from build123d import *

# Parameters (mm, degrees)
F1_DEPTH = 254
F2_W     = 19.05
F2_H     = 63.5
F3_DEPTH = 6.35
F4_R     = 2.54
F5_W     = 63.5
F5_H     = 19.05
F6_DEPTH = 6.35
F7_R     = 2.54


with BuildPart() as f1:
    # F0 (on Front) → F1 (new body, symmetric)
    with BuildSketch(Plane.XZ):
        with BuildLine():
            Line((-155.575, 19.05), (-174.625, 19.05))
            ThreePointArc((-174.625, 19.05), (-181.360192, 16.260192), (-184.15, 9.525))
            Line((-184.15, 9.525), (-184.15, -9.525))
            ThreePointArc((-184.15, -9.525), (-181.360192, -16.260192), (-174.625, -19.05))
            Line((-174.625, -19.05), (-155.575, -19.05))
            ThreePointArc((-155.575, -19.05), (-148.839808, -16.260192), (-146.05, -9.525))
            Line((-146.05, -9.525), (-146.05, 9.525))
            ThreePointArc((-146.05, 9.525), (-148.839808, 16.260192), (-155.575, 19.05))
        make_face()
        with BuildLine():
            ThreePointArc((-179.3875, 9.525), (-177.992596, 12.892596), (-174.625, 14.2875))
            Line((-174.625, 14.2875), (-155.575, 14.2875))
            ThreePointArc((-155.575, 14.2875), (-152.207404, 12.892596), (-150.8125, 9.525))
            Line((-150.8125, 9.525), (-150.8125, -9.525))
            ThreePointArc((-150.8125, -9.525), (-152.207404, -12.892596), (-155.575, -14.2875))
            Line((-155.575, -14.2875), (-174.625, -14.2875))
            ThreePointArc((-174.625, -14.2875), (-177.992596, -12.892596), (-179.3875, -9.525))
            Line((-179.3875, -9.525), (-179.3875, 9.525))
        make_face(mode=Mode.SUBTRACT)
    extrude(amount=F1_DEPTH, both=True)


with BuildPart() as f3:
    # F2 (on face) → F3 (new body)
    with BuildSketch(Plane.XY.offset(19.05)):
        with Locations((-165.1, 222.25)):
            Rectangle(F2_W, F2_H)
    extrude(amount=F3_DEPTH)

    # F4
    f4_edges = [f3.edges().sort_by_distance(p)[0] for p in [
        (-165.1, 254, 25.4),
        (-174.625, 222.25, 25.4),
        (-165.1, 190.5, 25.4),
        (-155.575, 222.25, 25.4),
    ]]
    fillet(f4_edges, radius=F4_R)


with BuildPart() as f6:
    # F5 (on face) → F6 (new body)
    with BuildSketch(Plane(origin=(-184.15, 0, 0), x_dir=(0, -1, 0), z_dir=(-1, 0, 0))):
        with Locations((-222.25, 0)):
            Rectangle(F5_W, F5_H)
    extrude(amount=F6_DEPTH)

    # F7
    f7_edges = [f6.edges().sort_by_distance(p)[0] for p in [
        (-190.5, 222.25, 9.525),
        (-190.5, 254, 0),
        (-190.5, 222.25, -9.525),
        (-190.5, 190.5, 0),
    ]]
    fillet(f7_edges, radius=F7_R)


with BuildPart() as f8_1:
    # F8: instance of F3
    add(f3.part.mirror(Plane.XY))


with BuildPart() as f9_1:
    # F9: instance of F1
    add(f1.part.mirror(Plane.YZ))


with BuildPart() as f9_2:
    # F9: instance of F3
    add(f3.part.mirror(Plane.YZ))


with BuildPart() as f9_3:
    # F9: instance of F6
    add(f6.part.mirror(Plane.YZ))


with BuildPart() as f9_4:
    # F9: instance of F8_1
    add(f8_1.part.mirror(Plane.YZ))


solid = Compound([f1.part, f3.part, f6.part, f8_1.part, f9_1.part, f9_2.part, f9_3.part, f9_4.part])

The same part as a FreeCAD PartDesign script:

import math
import FreeCAD as App
import Part
import Sketcher
from FreeCAD import Vector
Q = App.Units.Quantity


def edges_at(feature, points):
    """Names of the edges that pass closest to the given points."""
    edges = feature.Shape.Edges
    near = lambda p: min(range(len(edges)), key=lambda i: edges[i].distToShape(Part.Vertex(*p))[0])
    return sorted({f"Edge{near(p) + 1}" for p in points})

doc = App.newDocument("Part")
body = doc.addObject("PartDesign::Body", "Body")

sketch1 = doc.addObject("Sketcher::SketchObject", "Sketch")
body.addObject(sketch1)
sketch1.AttachmentSupport = (doc.XZ_Plane, [""])
sketch1.MapMode = "FlatFace"
sketch1.addGeometry(Part.LineSegment(Vector(-155.6, 19.1, 0), Vector(-174.6, 19.1, 0)), False)
sketch1.addGeometry(Part.ArcOfCircle(Part.Circle(Vector(-174.6, 9.5, 0), Vector(0, 0, 1), 9.5), math.radians(90), math.radians(180)), False)
sketch1.addGeometry(Part.LineSegment(Vector(-184.2, 9.5, 0), Vector(-184.2, -9.5, 0)), False)
sketch1.addGeometry(Part.ArcOfCircle(Part.Circle(Vector(-174.6, -9.5, 0), Vector(0, 0, 1), 9.5), math.radians(-180), math.radians(-90)), False)
sketch1.addGeometry(Part.LineSegment(Vector(-174.6, -19.1, 0), Vector(-155.6, -19.1, 0)), False)
sketch1.addGeometry(Part.ArcOfCircle(Part.Circle(Vector(-155.6, -9.5, 0), Vector(0, 0, 1), 9.5), math.radians(-90), math.radians(0)), False)
sketch1.addGeometry(Part.LineSegment(Vector(-146.1, -9.5, 0), Vector(-146.1, 9.5, 0)), False)
sketch1.addGeometry(Part.ArcOfCircle(Part.Circle(Vector(-155.6, 9.5, 0), Vector(0, 0, 1), 9.5), math.radians(0), math.radians(90)), False)
sketch1.addGeometry(Part.LineSegment(Vector(-179.4, -9.5, 0), Vector(-179.4, 9.5, 0)), False)
sketch1.addGeometry(Part.ArcOfCircle(Part.Circle(Vector(-174.6, 9.5, 0), Vector(0, 0, 1), 4.8), math.radians(90), math.radians(180)), False)
sketch1.addGeometry(Part.LineSegment(Vector(-174.6, 14.3, 0), Vector(-155.6, 14.3, 0)), False)
sketch1.addGeometry(Part.ArcOfCircle(Part.Circle(Vector(-155.6, 9.5, 0), Vector(0, 0, 1), 4.8), math.radians(0), math.radians(90)), False)
sketch1.addGeometry(Part.LineSegment(Vector(-150.8, 9.5, 0), Vector(-150.8, -9.5, 0)), False)
sketch1.addGeometry(Part.ArcOfCircle(Part.Circle(Vector(-155.6, -9.5, 0), Vector(0, 0, 1), 4.8), math.radians(-90), math.radians(0)), False)
sketch1.addGeometry(Part.LineSegment(Vector(-155.6, -14.3, 0), Vector(-174.6, -14.3, 0)), False)
sketch1.addGeometry(Part.ArcOfCircle(Part.Circle(Vector(-174.6, -9.5, 0), Vector(0, 0, 1), 4.8), math.radians(-180), math.radians(-90)), False)
sketch1.addConstraint(Sketcher.Constraint("Tangent", 0, 2, 1, 1))
sketch1.addConstraint(Sketcher.Constraint("Tangent", 1, 2, 2, 1))
sketch1.addConstraint(Sketcher.Constraint("Tangent", 2, 2, 3, 1))
sketch1.addConstraint(Sketcher.Constraint("Tangent", 3, 2, 4, 1))
sketch1.addConstraint(Sketcher.Constraint("Tangent", 4, 2, 5, 1))
sketch1.addConstraint(Sketcher.Constraint("Tangent", 5, 2, 6, 1))
sketch1.addConstraint(Sketcher.Constraint("Tangent", 6, 2, 7, 1))
sketch1.addConstraint(Sketcher.Constraint("Tangent", 7, 2, 0, 1))
sketch1.addConstraint(Sketcher.Constraint("Tangent", 8, 2, 9, 2))
sketch1.addConstraint(Sketcher.Constraint("Tangent", 9, 1, 10, 1))
sketch1.addConstraint(Sketcher.Constraint("Tangent", 10, 2, 11, 2))
sketch1.addConstraint(Sketcher.Constraint("Tangent", 11, 1, 12, 1))
sketch1.addConstraint(Sketcher.Constraint("Tangent", 12, 2, 13, 2))
sketch1.addConstraint(Sketcher.Constraint("Tangent", 13, 1, 14, 1))
sketch1.addConstraint(Sketcher.Constraint("Tangent", 14, 2, 15, 2))
sketch1.addConstraint(Sketcher.Constraint("Tangent", 15, 1, 8, 1))
sketch1.addConstraint(Sketcher.Constraint("Horizontal", 0))
sketch1.addConstraint(Sketcher.Constraint("Vertical", 2))
sketch1.addConstraint(Sketcher.Constraint("Horizontal", 4))
sketch1.addConstraint(Sketcher.Constraint("Vertical", 6))
sketch1.addConstraint(Sketcher.Constraint("Vertical", 8))
sketch1.addConstraint(Sketcher.Constraint("Horizontal", 10))
sketch1.addConstraint(Sketcher.Constraint("Vertical", 12))
sketch1.addConstraint(Sketcher.Constraint("Horizontal", 14))
sketch1.addConstraint(Sketcher.Constraint("Coincident", 9, 3, 1, 3))
sketch1.addConstraint(Sketcher.Constraint("Coincident", 11, 3, 7, 3))
sketch1.addConstraint(Sketcher.Constraint("Coincident", 13, 3, 5, 3))
sketch1.addConstraint(Sketcher.Constraint("Equal", 1, 3))
sketch1.addConstraint(Sketcher.Constraint("Equal", 3, 5))
sketch1.addConstraint(Sketcher.Constraint("Equal", 5, 7))
sketch1.addConstraint(Sketcher.Constraint("Equal", 13, 15))
sketch1.addConstraint(Sketcher.Constraint("Equal", 14, 2))
sketch1.addConstraint(Sketcher.Constraint("Radius", 1, Q("0.375 in")))
sketch1.addConstraint(Sketcher.Constraint("Radius", 9, Q("0.1875 in")))
sketch1.addConstraint(Sketcher.Constraint("DistanceX", 0, 2, 0, 1, Q("0.75 in")))
sketch1.addConstraint(Sketcher.Constraint("DistanceY", -1, 1, 0, 2, Q("0.75 in")))
sketch1.addConstraint(Sketcher.Constraint("DistanceX", 1, 2, -1, 1, Q("7.25 in")))
pad1 = doc.addObject("PartDesign::Pad", "Pad")
body.addObject(pad1)
pad1.Profile = sketch1
pad1.Length = Q("20 in")
pad1.Midplane = True
body2 = doc.addObject("PartDesign::Body", "Body001")

sketch2 = doc.addObject("Sketcher::SketchObject", "Sketch001")
body2.addObject(sketch2)
sketch2.AttachmentSupport = (doc.getObject("XY_Plane001"), [""])
sketch2.MapMode = "FlatFace"
sketch2.AttachmentOffset = App.Placement(Vector(0, 0, 0.75 * 25.4), App.Rotation())
sketch2.addGeometry(Part.LineSegment(Vector(-175, 254, 0), Vector(-175, 190, 0)), False)
sketch2.addGeometry(Part.LineSegment(Vector(-175, 190, 0), Vector(-156, 190, 0)), False)
sketch2.addGeometry(Part.LineSegment(Vector(-156, 190, 0), Vector(-156, 254, 0)), False)
sketch2.addGeometry(Part.LineSegment(Vector(-156, 254, 0), Vector(-175, 254, 0)), False)
sketch2.addConstraint(Sketcher.Constraint("Coincident", 0, 2, 1, 1))
sketch2.addConstraint(Sketcher.Constraint("Coincident", 1, 2, 2, 1))
sketch2.addConstraint(Sketcher.Constraint("Coincident", 2, 2, 3, 1))
sketch2.addConstraint(Sketcher.Constraint("Coincident", 3, 2, 0, 1))
sketch2.addConstraint(Sketcher.Constraint("Vertical", 0))
sketch2.addConstraint(Sketcher.Constraint("Horizontal", 1))
sketch2.addConstraint(Sketcher.Constraint("Vertical", 2))
sketch2.addConstraint(Sketcher.Constraint("Horizontal", 3))
sketch2.addConstraint(Sketcher.Constraint("DistanceY", 0, 2, 0, 1, Q("2.5 in")))
sketch2.addConstraint(Sketcher.Constraint("DistanceY", -1, 1, 2, 2, Q("10 in")))
sketch2.addConstraint(Sketcher.Constraint("DistanceX", 1, 1, 1, 2, Q("0.75 in")))
sketch2.addConstraint(Sketcher.Constraint("DistanceX", 0, 2, -1, 1, Q("6.875 in")))
pad2 = doc.addObject("PartDesign::Pad", "Pad001")
body2.addObject(pad2)
pad2.Profile = sketch2
pad2.Length = Q("0.25 in")
doc.recompute()

fillet = doc.addObject("PartDesign::Fillet", "Fillet")
body2.addObject(fillet)
fillet.Base = (pad2, edges_at(pad2, [
    (-165.1, 254, 25.4),
    (-174.625, 222.25, 25.4),
    (-165.1, 190.5, 25.4),
    (-155.575, 222.25, 25.4),
]))
fillet.Radius = Q("0.1 in")
body3 = doc.addObject("PartDesign::Body", "Body002")

sketch3 = doc.addObject("Sketcher::SketchObject", "Sketch002")
body3.addObject(sketch3)
sketch3.AttachmentSupport = (doc.getObject("YZ_Plane002"), [""])
sketch3.MapMode = "FlatFace"
sketch3.AttachmentOffset = App.Placement(Vector(0, 0, -7.25 * 25.4), App.Rotation())
sketch3.addGeometry(Part.LineSegment(Vector(254, 10, 0), Vector(254, -10, 0)), False)
sketch3.addGeometry(Part.LineSegment(Vector(254, -10, 0), Vector(190, -10, 0)), False)
sketch3.addGeometry(Part.LineSegment(Vector(190, -10, 0), Vector(190, 10, 0)), False)
sketch3.addGeometry(Part.LineSegment(Vector(190, 10, 0), Vector(254, 10, 0)), False)
sketch3.addConstraint(Sketcher.Constraint("Coincident", 0, 2, 1, 1))
sketch3.addConstraint(Sketcher.Constraint("Coincident", 1, 2, 2, 1))
sketch3.addConstraint(Sketcher.Constraint("Coincident", 2, 2, 3, 1))
sketch3.addConstraint(Sketcher.Constraint("Coincident", 3, 2, 0, 1))
sketch3.addConstraint(Sketcher.Constraint("Vertical", 0))
sketch3.addConstraint(Sketcher.Constraint("Horizontal", 1))
sketch3.addConstraint(Sketcher.Constraint("Vertical", 2))
sketch3.addConstraint(Sketcher.Constraint("Horizontal", 3))
sketch3.addConstraint(Sketcher.Constraint("DistanceX", 1, 2, 1, 1, Q("2.5 in")))
sketch3.addConstraint(Sketcher.Constraint("DistanceX", -1, 1, 0, 2, Q("10 in")))
sketch3.addConstraint(Sketcher.Constraint("DistanceY", 0, 2, 0, 1, Q("0.75 in")))
sketch3.addConstraint(Sketcher.Constraint("DistanceY", 0, 2, -1, 1, Q("0.375 in")))
pad3 = doc.addObject("PartDesign::Pad", "Pad002")
body3.addObject(pad3)
pad3.Profile = sketch3
pad3.Length = Q("0.25 in")
pad3.Reversed = True
doc.recompute()

fillet2 = doc.addObject("PartDesign::Fillet", "Fillet001")
body3.addObject(fillet2)
fillet2.Base = (pad3, edges_at(pad3, [
    (-190.5, 222.25, 9.525),
    (-190.5, 254, 0),
    (-190.5, 222.25, -9.525),
    (-190.5, 190.5, 0),
]))
fillet2.Radius = Q("0.1 in")
body4 = doc.addObject("PartDesign::Body", "Body003")
doc.recompute()

mirroring = doc.addObject("Part::Mirroring", "Mirroring")
mirroring.Source = body2
mirroring.Base = Vector(0, 0, 0)
mirroring.Normal = Vector(0, 0, 1)
body4.BaseFeature = mirroring
doc.recompute()
body5 = doc.addObject("PartDesign::Body", "Body004")
doc.recompute()

mirroring2 = doc.addObject("Part::Mirroring", "Mirroring001")
mirroring2.Source = body
mirroring2.Base = Vector(0, 0, 0)
mirroring2.Normal = Vector(1, 0, 0)
body5.BaseFeature = mirroring2
doc.recompute()
body6 = doc.addObject("PartDesign::Body", "Body005")
doc.recompute()

mirroring3 = doc.addObject("Part::Mirroring", "Mirroring002")
mirroring3.Source = body2
mirroring3.Base = Vector(0, 0, 0)
mirroring3.Normal = Vector(1, 0, 0)
body6.BaseFeature = mirroring3
doc.recompute()
body7 = doc.addObject("PartDesign::Body", "Body006")
doc.recompute()

mirroring4 = doc.addObject("Part::Mirroring", "Mirroring003")
mirroring4.Source = body3
mirroring4.Base = Vector(0, 0, 0)
mirroring4.Normal = Vector(1, 0, 0)
body7.BaseFeature = mirroring4
doc.recompute()
body8 = doc.addObject("PartDesign::Body", "Body007")
doc.recompute()

mirroring5 = doc.addObject("Part::Mirroring", "Mirroring004")
mirroring5.Source = body4
mirroring5.Base = Vector(0, 0, 0)
mirroring5.Normal = Vector(1, 0, 0)
body8.BaseFeature = mirroring5
doc.recompute()
mirroring.Visibility = False
mirroring2.Visibility = False
mirroring3.Visibility = False
mirroring4.Visibility = False
mirroring5.Visibility = False

doc.recompute()
